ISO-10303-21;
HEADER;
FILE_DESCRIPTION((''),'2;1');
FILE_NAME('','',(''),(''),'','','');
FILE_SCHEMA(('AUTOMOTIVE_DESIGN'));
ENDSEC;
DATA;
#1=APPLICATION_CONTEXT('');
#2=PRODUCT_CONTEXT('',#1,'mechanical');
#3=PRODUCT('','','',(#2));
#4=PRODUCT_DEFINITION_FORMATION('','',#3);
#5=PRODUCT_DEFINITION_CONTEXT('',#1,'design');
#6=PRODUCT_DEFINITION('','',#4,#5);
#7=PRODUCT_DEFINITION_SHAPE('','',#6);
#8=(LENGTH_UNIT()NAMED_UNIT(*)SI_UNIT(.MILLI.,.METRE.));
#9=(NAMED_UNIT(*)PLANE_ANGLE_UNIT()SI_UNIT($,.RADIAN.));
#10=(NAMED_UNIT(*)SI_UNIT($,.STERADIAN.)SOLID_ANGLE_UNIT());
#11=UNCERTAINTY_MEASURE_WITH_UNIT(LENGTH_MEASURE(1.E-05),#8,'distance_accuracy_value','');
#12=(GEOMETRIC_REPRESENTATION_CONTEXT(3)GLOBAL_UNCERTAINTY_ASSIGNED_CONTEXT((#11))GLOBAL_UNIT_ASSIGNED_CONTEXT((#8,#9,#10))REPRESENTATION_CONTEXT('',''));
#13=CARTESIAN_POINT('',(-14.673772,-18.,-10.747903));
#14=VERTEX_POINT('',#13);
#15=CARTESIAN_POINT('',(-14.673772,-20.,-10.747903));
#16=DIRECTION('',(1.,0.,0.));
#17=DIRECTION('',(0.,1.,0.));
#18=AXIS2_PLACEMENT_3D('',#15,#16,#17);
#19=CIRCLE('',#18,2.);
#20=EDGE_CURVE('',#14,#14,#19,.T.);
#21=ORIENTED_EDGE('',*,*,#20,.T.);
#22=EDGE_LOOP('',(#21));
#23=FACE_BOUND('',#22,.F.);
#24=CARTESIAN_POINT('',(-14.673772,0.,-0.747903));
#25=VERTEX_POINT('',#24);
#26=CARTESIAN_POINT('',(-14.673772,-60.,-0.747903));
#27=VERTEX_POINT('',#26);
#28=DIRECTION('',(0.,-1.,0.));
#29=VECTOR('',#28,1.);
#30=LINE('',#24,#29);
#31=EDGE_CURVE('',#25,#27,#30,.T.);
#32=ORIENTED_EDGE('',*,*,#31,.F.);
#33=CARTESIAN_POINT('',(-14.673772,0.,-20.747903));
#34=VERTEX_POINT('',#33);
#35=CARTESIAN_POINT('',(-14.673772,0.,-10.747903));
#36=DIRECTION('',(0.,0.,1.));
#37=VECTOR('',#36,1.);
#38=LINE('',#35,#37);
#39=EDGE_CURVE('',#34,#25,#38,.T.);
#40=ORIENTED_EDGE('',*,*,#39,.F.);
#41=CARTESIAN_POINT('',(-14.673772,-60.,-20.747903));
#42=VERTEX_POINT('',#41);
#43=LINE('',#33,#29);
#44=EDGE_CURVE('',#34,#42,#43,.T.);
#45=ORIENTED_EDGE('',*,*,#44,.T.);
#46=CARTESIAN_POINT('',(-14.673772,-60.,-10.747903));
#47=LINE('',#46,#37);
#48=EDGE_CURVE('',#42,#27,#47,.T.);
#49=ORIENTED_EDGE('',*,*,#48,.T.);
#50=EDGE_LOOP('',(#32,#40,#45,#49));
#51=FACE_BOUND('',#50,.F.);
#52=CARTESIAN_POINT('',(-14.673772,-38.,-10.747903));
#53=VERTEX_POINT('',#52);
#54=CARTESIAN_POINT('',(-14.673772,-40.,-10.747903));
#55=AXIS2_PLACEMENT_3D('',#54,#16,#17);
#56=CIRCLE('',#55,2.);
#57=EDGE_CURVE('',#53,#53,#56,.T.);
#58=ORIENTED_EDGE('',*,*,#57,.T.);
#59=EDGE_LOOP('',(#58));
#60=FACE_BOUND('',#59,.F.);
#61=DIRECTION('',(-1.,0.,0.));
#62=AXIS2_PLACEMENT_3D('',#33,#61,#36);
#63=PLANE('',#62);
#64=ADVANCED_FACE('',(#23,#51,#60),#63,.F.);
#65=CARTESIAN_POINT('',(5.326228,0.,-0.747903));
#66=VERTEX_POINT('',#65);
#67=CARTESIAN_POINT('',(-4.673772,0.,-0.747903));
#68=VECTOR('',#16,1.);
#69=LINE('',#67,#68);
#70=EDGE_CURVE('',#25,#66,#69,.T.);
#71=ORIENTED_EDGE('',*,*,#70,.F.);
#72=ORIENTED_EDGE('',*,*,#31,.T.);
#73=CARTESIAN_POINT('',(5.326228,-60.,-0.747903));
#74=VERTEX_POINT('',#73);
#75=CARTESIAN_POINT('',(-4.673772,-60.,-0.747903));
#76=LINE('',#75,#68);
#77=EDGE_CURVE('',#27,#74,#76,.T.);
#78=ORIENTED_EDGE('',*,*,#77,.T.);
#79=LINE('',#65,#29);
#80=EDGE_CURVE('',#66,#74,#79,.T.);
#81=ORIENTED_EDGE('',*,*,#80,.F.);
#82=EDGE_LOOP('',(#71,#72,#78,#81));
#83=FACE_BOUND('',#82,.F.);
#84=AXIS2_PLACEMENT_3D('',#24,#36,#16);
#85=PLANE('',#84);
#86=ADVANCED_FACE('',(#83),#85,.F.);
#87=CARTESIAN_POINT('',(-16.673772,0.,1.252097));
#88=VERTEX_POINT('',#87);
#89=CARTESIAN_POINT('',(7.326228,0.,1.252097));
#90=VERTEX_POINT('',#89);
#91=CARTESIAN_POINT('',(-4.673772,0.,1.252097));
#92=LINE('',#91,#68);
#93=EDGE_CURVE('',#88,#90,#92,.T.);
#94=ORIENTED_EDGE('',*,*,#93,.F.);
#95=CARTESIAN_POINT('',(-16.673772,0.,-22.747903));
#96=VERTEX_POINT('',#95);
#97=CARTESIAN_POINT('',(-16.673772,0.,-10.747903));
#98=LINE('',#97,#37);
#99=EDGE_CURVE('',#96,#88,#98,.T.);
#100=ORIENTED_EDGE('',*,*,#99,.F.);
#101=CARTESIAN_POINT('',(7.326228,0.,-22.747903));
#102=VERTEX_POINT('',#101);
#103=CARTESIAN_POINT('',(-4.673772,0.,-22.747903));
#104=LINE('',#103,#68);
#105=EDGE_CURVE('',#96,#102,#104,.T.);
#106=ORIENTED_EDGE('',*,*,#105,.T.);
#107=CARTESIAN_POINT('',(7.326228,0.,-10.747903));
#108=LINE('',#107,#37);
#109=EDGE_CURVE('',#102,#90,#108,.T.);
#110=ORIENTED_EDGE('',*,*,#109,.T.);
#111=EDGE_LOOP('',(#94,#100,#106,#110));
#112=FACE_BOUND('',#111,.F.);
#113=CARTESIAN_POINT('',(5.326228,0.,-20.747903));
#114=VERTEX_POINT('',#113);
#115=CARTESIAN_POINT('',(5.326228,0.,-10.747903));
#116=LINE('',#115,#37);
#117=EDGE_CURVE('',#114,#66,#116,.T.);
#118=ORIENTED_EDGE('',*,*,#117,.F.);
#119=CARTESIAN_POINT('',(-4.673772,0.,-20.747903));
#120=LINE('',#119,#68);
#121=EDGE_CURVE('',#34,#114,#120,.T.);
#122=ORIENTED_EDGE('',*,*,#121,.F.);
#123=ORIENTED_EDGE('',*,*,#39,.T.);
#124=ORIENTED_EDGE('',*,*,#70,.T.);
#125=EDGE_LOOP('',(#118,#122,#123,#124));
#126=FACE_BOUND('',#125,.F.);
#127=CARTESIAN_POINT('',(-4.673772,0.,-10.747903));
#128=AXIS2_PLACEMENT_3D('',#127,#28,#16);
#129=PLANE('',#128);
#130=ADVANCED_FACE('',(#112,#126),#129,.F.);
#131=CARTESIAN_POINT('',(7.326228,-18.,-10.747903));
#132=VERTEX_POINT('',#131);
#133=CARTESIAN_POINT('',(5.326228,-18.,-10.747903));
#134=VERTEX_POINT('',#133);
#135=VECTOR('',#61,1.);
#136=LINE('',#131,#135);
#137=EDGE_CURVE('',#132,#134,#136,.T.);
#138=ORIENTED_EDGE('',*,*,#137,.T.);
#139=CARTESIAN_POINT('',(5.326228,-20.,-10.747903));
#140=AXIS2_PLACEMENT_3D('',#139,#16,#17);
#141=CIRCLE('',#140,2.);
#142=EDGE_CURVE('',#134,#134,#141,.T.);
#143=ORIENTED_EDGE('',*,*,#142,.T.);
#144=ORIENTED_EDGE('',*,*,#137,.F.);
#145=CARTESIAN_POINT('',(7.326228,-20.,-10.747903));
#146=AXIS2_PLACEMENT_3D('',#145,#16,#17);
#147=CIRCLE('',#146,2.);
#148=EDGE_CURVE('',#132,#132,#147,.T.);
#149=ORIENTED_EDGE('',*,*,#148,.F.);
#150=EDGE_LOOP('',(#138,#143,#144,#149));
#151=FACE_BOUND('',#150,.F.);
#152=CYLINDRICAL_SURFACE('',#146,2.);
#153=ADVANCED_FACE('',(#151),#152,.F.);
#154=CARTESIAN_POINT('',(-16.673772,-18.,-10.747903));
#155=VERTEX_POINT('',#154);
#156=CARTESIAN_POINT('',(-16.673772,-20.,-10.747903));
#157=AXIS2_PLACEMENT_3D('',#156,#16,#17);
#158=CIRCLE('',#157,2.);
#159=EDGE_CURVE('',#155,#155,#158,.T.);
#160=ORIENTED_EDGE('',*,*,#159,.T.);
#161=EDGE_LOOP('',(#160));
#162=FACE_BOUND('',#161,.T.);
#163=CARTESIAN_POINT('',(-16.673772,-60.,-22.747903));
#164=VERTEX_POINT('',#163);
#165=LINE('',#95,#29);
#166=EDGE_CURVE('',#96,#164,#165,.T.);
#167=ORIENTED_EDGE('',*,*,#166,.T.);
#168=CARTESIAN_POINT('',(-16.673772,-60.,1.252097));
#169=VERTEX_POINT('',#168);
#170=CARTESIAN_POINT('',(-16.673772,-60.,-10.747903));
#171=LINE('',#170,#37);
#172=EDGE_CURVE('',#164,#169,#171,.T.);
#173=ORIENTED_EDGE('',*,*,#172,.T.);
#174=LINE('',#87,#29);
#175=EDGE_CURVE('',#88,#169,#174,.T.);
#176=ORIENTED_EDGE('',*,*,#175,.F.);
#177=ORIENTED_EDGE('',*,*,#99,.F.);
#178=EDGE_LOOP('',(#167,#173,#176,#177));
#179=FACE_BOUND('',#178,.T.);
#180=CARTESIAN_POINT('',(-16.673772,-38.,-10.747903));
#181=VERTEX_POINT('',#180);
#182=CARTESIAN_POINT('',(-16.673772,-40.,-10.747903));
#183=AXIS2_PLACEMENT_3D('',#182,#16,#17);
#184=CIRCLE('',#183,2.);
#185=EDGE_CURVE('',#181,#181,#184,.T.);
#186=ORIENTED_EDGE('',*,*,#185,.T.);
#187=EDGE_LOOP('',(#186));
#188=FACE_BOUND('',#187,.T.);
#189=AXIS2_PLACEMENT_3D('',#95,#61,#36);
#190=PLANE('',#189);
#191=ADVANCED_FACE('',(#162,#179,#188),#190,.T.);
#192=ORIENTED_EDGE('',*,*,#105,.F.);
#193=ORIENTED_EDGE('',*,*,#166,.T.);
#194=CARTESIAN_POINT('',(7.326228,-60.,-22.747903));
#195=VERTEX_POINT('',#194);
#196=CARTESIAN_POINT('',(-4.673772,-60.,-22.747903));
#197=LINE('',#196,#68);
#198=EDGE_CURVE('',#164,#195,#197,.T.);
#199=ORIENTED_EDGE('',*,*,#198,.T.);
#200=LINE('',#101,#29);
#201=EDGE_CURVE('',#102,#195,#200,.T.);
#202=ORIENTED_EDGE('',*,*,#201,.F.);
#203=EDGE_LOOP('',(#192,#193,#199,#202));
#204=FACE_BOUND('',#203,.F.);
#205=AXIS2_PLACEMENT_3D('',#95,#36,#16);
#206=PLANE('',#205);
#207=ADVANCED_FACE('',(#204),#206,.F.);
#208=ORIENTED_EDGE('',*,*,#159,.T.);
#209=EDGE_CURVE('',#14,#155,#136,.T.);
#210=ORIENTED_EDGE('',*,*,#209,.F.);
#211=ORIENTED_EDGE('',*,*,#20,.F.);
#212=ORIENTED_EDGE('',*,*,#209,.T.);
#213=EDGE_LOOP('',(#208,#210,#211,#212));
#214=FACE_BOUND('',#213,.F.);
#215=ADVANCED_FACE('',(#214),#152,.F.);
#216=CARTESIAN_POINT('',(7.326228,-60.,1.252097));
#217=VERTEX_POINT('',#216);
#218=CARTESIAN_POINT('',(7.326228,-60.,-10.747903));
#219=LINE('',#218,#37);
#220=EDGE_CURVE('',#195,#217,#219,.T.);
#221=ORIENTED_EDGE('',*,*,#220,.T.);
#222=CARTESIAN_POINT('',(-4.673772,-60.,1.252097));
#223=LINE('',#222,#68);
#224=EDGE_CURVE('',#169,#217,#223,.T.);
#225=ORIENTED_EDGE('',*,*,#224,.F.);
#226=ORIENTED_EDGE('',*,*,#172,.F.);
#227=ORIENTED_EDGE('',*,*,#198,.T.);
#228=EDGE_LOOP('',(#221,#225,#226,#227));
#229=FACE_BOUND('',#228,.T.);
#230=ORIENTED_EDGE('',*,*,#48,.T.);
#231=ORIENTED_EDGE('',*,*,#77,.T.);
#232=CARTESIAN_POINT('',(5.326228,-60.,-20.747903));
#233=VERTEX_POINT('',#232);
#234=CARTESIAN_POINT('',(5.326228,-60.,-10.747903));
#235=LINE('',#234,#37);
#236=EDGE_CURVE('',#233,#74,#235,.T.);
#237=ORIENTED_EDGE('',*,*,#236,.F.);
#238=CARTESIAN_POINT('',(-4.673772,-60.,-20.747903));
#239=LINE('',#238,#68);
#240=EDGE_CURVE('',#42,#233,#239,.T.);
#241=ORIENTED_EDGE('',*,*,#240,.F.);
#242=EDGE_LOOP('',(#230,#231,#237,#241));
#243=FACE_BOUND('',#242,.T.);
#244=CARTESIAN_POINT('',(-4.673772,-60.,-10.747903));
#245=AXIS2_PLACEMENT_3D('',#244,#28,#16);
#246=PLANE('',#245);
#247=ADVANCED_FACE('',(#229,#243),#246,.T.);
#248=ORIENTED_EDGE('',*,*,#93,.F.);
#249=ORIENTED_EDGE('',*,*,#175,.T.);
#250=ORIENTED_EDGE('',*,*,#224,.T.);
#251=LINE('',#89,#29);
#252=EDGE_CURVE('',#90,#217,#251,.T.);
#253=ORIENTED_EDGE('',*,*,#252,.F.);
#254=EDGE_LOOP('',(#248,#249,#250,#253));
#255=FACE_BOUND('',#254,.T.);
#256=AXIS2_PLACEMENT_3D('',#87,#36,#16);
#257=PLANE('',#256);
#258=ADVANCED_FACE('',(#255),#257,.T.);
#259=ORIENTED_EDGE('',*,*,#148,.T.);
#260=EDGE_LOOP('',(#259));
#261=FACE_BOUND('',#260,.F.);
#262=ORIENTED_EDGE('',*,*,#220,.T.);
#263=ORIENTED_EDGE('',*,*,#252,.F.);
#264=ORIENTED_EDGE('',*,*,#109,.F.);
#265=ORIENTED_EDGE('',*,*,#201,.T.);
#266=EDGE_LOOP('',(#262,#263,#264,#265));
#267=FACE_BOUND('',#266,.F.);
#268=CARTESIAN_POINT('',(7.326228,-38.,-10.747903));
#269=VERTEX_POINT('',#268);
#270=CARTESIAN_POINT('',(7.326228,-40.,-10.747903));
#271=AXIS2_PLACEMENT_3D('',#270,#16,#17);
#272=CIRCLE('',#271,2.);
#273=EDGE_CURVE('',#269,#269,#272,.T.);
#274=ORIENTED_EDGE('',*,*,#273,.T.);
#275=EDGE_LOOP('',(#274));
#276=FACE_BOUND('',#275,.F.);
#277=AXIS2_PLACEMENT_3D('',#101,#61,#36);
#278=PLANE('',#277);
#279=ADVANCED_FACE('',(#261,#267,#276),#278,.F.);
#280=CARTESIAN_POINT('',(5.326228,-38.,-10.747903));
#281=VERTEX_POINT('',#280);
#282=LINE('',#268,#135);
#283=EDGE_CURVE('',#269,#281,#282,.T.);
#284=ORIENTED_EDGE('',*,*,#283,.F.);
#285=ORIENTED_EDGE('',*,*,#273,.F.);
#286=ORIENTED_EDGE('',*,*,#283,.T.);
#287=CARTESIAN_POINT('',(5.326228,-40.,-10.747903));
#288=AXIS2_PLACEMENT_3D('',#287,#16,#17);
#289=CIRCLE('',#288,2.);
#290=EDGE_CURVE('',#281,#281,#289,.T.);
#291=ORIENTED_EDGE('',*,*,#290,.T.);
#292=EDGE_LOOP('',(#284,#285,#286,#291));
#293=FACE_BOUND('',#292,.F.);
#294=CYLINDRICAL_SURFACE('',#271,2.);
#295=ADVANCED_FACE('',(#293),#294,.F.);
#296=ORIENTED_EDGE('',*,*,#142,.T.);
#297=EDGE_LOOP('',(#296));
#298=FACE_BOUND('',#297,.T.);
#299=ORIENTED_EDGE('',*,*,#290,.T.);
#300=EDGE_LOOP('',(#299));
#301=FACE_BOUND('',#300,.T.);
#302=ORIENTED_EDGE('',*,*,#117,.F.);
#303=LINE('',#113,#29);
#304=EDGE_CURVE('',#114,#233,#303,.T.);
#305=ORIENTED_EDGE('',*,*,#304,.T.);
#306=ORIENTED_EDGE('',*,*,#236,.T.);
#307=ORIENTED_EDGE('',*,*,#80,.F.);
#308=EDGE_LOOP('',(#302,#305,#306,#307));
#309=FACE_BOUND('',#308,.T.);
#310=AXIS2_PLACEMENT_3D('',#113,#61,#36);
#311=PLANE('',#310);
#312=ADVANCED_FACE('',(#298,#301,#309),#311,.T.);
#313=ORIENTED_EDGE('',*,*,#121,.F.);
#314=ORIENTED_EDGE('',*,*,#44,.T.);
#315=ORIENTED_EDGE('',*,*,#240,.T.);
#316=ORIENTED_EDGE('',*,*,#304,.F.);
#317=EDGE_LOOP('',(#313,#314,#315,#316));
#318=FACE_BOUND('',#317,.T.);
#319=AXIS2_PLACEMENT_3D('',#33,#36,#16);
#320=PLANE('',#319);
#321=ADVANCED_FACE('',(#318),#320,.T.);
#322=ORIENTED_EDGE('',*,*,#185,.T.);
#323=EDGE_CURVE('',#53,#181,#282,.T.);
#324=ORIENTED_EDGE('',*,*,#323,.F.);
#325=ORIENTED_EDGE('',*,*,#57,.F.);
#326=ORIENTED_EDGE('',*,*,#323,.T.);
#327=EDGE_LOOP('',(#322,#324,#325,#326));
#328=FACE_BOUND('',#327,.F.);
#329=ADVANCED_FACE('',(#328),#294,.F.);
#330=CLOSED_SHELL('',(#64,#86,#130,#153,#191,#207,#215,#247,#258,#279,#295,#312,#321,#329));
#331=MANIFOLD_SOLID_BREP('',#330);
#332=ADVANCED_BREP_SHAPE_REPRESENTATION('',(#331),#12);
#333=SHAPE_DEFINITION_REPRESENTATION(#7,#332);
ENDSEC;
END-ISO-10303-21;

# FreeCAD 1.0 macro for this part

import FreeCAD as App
import Part
import Sketcher

V = App.Vector

doc = App.newDocument("Part")
body = doc.addObject("PartDesign::Body", "Body")

sketch1 = body.newObject("Sketcher::SketchObject", "Sketch")
sketch1.AttachmentSupport = (doc.getObject("XZ_Plane"), [""])
sketch1.MapMode = "FlatFace"
sketch1.addGeometry(Part.LineSegment(V(-16.673772, 1.252097, 0), V(-16.673772, -22.747903, 0)), False)
sketch1.addGeometry(Part.LineSegment(V(-16.673772, -22.747903, 0), V(7.326228, -22.747903, 0)), False)
sketch1.addGeometry(Part.LineSegment(V(7.326228, -22.747903, 0), V(7.326228, 1.252097, 0)), False)
sketch1.addGeometry(Part.LineSegment(V(7.326228, 1.252097, 0), V(-16.673772, 1.252097, 0)), False)
sketch1.addGeometry(Part.LineSegment(V(5.326228, -20.747903, 0), V(-14.673772, -20.747903, 0)), False)
sketch1.addGeometry(Part.LineSegment(V(-14.673772, -20.747903, 0), V(-14.673772, -0.747903, 0)), False)
sketch1.addGeometry(Part.LineSegment(V(-14.673772, -0.747903, 0), V(5.326228, -0.747903, 0)), False)
sketch1.addGeometry(Part.LineSegment(V(5.326228, -0.747903, 0), V(5.326228, -20.747903, 0)), False)
sketch1.addConstraint(Sketcher.Constraint("Coincident", 0, 2, 1, 1))
sketch1.addConstraint(Sketcher.Constraint("Coincident", 1, 2, 2, 1))
sketch1.addConstraint(Sketcher.Constraint("Coincident", 2, 2, 3, 1))
sketch1.addConstraint(Sketcher.Constraint("Coincident", 3, 2, 0, 1))
sketch1.addConstraint(Sketcher.Constraint("Coincident", 4, 2, 5, 1))
sketch1.addConstraint(Sketcher.Constraint("Coincident", 5, 2, 6, 1))
sketch1.addConstraint(Sketcher.Constraint("Coincident", 6, 2, 7, 1))
sketch1.addConstraint(Sketcher.Constraint("Coincident", 7, 2, 4, 1))
sketch1.addConstraint(Sketcher.Constraint("Vertical", 0))
sketch1.addConstraint(Sketcher.Constraint("Horizontal", 1))
sketch1.addConstraint(Sketcher.Constraint("Vertical", 2))
sketch1.addConstraint(Sketcher.Constraint("Horizontal", 3))
sketch1.addConstraint(Sketcher.Constraint("Horizontal", 4))
sketch1.addConstraint(Sketcher.Constraint("Vertical", 5))
sketch1.addConstraint(Sketcher.Constraint("Horizontal", 6))
sketch1.addConstraint(Sketcher.Constraint("Vertical", 7))
sketch1.addConstraint(Sketcher.Constraint("Equal", 3, 0))
sketch1.addConstraint(Sketcher.Constraint("Equal", 6, 5))
sketch1.addConstraint(Sketcher.Constraint("DistanceX", 1, 1, 1, 2, 24.0))
sketch1.addConstraint(Sketcher.Constraint("DistanceX", 4, 2, 4, 1, 20.0))
sketch1.addConstraint(Sketcher.Constraint("DistanceX", 0, 2, 4, 2, 2.0))
sketch1.addConstraint(Sketcher.Constraint("DistanceY", 0, 2, 4, 2, 2.0))
sketch1.addConstraint(Sketcher.Constraint("DistanceX", 0, 2, -1, 1, 16.673772))
sketch1.addConstraint(Sketcher.Constraint("DistanceY", 0, 2, -1, 1, 22.747903))
pad1 = body.newObject("PartDesign::Pad", "Pad")
pad1.Profile = sketch1
pad1.Length = 60

sketch2 = body.newObject("Sketcher::SketchObject", "Sketch001")
sketch2.AttachmentSupport = (doc.getObject("YZ_Plane"), [""])
sketch2.MapMode = "FlatFace"
sketch2.AttachmentOffset = App.Placement(V(0, 0, 7.326228), App.Rotation())
sketch2.addGeometry(Part.Circle(V(-40, -10.747903, 0), V(0, 0, 1), 2), False)
sketch2.addGeometry(Part.Circle(V(-20, -10.747903, 0), V(0, 0, 1), 2), False)
sketch2.addConstraint(Sketcher.Constraint("Equal", 0, 1))
sketch2.addConstraint(Sketcher.Constraint("Horizontal", 0, 3, 1, 3))
sketch2.addConstraint(Sketcher.Constraint("Diameter", 0, 4.0))
sketch2.addConstraint(Sketcher.Constraint("DistanceX", 0, 3, -1, 1, 40.0))
sketch2.addConstraint(Sketcher.Constraint("DistanceX", 1, 3, -1, 1, 20.0))
sketch2.addConstraint(Sketcher.Constraint("DistanceY", 0, 3, -1, 1, 10.747903))
pocket1 = body.newObject("PartDesign::Pocket", "Pocket")
pocket1.Profile = sketch2
pocket1.Length = 25

doc.recompute()
